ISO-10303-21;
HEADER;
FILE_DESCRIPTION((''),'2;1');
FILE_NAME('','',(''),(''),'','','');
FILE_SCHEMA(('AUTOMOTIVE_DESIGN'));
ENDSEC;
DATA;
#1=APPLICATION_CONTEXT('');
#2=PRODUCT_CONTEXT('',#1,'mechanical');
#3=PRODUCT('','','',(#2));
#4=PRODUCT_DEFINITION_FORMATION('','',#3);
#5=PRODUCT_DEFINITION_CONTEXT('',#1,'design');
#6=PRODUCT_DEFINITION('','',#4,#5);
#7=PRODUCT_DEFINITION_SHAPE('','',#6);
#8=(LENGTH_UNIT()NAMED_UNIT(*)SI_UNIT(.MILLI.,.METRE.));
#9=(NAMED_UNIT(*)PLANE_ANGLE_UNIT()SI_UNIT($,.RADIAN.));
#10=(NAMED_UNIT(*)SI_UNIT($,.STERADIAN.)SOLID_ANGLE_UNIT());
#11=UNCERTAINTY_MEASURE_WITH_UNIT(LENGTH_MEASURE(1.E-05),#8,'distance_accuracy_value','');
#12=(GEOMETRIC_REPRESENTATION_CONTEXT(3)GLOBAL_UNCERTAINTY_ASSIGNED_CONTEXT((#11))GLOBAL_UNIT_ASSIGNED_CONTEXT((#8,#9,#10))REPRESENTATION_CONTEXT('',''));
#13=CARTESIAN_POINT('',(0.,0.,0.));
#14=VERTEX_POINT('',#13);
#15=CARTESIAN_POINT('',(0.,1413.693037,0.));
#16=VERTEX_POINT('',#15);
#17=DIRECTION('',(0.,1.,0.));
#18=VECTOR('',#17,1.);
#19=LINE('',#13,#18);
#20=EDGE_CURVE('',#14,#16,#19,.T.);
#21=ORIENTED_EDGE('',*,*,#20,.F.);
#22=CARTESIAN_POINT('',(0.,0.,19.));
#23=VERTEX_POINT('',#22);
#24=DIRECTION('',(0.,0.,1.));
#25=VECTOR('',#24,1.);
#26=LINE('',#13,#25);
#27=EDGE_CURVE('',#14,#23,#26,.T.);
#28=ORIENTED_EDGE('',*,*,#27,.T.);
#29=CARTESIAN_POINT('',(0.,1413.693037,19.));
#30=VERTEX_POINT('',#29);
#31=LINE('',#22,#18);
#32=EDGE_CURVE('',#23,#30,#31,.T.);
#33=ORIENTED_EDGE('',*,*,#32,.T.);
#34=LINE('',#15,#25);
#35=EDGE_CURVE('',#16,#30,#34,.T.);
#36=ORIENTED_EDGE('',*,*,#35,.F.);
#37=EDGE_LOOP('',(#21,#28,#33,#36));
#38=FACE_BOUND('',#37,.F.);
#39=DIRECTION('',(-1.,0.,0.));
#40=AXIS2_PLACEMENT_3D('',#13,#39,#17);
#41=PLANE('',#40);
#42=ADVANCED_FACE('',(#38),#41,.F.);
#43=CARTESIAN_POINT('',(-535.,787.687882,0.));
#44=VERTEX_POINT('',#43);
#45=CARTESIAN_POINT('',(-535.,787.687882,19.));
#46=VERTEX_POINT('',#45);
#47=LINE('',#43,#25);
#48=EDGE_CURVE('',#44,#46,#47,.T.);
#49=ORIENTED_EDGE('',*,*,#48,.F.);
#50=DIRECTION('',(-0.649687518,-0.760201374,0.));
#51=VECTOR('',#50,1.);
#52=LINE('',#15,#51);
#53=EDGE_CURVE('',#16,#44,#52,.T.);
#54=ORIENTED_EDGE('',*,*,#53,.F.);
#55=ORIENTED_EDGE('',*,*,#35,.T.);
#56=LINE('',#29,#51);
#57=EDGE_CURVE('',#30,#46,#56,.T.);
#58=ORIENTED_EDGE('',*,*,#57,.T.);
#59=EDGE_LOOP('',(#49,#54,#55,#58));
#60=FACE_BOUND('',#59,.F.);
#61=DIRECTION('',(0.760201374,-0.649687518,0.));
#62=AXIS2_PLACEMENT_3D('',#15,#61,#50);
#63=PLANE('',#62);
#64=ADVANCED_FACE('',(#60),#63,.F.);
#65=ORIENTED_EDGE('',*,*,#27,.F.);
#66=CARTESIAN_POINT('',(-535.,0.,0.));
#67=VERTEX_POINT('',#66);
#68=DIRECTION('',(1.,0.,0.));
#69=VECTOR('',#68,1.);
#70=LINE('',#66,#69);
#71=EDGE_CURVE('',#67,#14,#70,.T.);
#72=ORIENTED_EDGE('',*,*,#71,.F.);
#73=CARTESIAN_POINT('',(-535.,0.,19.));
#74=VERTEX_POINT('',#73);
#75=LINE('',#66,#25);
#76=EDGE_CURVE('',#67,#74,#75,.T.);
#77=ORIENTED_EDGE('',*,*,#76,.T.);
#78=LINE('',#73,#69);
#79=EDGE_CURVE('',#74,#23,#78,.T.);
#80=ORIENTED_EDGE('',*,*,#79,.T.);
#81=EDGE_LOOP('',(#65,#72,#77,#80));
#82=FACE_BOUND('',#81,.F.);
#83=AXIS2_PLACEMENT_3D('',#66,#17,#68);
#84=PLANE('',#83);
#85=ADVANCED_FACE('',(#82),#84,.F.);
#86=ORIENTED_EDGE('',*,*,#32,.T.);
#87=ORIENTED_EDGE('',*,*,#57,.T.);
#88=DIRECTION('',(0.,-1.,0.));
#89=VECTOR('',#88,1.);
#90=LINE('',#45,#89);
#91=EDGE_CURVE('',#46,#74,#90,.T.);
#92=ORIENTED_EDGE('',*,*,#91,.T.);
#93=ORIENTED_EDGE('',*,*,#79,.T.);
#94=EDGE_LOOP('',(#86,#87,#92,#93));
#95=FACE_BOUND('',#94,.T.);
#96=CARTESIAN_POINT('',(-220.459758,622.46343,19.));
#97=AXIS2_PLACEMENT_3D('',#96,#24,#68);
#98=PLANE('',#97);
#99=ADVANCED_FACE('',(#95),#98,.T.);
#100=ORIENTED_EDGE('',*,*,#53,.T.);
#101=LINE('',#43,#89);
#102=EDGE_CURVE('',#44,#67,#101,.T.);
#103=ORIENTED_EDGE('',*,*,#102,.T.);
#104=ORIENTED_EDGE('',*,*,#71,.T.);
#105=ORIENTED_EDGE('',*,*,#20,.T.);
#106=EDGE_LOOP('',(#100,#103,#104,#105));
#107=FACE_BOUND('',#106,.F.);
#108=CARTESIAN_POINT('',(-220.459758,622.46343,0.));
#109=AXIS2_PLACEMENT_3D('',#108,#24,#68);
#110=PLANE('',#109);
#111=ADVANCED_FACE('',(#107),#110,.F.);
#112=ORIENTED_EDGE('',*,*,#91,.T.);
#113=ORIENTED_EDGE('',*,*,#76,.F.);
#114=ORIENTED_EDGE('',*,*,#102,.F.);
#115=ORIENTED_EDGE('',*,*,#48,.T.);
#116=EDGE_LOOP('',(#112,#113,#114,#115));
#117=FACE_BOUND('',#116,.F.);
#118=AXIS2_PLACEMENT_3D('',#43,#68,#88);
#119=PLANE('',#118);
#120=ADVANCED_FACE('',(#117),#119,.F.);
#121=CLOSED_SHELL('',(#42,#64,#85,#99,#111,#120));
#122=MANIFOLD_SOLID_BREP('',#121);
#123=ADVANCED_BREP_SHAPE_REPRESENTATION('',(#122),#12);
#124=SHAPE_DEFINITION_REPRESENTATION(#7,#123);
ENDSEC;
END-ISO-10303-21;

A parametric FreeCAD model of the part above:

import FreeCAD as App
import Part
import Sketcher

V = App.Vector
Q = App.Units.Quantity


def add_polygon(sketch, points):
    """Adds a closed chain of lines whose ends are joined by coincident constraints."""
    first, n = sketch.GeometryCount, len(points)
    for a, b in zip(points, points[1:] + points[:1]):
        sketch.addGeometry(Part.LineSegment(App.Vector(*a, 0), App.Vector(*b, 0)), False)
    for i in range(n):
        sketch.addConstraint(Sketcher.Constraint("Coincident", first + i, 2, first + (i + 1) % n, 1))

doc = App.newDocument("Part")
params = doc.addObject("Spreadsheet::Sheet", "Params")
for row, (alias, value) in enumerate([
    ("sketch1_width", "535 mm"),
    ("pad1_length", "19 mm"),
], start=1):
    params.set(f"A{row}", alias)
    params.set(f"B{row}", "=" + value)
    params.setAlias(f"B{row}", alias)

body = doc.addObject("PartDesign::Body", "Body")

# Sketch on XY plane
sketch1 = body.newObject("Sketcher::SketchObject", "Sketch")
sketch1.AttachmentSupport = (doc.getObject("XY_Plane"), [""])
sketch1.MapMode = "FlatFace"
add_polygon(sketch1, [(0, 0), (0, 1414), (-535, 788), (-535, 0)])  # lines 0-3
sketch1.addConstraint([
    Sketcher.Constraint("Vertical", 0),
    Sketcher.Constraint("Vertical", 2),
    Sketcher.Constraint("Horizontal", 3),
    Sketcher.Constraint("Coincident", 3, 2, -1, 1),
    Sketcher.Constraint("DistanceX", 3, 1, 3, 2, Q("535 mm")),
    Sketcher.Constraint("Distance", 1, Q("823.472801 mm")),
    Sketcher.Constraint("DistanceY", 2, 2, 2, 1, Q("787.687882 mm")),
])
sketch1.setExpression("Constraints[8]", "Params.sketch1_width")
pad1 = body.newObject("PartDesign::Pad", "Pad")
pad1.Profile = sketch1
pad1.setExpression("Length", "Params.pad1_length")

doc.recompute()
